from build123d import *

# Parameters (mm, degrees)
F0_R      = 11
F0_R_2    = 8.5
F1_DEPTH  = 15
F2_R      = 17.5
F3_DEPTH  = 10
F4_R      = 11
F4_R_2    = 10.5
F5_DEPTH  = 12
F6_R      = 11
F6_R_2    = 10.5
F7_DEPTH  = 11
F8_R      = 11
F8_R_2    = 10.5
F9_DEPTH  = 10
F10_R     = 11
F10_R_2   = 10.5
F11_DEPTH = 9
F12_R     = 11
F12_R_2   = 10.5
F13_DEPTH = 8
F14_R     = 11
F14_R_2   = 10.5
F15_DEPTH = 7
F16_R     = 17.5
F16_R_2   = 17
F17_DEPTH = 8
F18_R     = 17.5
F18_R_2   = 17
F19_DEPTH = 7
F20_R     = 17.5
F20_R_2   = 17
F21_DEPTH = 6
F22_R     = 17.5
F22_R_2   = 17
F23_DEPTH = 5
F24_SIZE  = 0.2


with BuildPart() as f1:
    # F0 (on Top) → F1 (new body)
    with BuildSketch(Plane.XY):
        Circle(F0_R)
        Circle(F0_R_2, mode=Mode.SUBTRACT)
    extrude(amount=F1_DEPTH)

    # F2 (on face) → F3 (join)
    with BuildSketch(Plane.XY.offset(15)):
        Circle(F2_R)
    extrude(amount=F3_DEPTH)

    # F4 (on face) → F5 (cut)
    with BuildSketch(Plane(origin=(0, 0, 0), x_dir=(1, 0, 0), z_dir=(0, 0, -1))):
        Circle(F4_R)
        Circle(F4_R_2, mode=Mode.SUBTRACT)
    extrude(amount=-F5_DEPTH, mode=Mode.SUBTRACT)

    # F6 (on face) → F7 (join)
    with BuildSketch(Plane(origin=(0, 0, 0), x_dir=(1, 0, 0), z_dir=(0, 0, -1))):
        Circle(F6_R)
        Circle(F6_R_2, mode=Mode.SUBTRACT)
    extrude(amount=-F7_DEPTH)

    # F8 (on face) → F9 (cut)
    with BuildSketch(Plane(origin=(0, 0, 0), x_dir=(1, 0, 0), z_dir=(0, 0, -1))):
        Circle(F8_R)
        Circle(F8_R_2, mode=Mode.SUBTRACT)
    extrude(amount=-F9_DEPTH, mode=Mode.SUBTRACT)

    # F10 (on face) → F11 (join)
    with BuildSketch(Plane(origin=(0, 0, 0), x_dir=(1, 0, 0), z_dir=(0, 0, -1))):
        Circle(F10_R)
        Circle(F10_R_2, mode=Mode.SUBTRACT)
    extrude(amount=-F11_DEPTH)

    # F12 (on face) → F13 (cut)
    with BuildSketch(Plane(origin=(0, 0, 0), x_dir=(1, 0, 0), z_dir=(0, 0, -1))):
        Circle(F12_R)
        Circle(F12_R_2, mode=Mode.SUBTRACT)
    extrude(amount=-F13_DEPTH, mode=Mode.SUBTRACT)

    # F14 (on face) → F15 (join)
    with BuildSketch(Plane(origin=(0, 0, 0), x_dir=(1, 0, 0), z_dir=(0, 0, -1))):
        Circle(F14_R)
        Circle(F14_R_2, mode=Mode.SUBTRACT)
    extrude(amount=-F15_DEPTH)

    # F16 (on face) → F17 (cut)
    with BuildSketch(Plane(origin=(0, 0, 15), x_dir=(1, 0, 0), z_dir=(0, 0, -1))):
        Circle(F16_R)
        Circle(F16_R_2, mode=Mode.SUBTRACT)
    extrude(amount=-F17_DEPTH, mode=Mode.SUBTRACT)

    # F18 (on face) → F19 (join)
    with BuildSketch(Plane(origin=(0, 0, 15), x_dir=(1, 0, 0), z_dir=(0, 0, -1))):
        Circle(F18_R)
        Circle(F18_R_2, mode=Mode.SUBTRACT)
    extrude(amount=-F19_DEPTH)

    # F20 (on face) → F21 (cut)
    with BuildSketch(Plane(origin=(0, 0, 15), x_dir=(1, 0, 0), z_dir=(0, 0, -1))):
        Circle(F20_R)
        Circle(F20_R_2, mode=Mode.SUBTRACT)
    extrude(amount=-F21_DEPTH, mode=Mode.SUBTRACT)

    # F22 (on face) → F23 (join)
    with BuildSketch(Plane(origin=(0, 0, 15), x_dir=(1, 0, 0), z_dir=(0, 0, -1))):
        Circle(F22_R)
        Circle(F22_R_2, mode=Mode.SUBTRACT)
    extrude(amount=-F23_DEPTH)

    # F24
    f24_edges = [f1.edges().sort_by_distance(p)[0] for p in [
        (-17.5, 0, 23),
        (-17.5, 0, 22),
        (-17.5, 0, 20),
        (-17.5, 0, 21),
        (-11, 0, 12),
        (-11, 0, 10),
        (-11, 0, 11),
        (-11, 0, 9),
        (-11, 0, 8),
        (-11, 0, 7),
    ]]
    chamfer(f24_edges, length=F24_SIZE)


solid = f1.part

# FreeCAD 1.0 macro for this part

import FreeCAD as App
import Part
import Sketcher
from FreeCAD import Vector
Q = App.Units.Quantity


def edges_at(feature, points):
    """Names of the edges that pass closest to the given points."""
    edges = feature.Shape.Edges
    near = lambda p: min(range(len(edges)), key=lambda i: edges[i].distToShape(Part.Vertex(*p))[0])
    return sorted({f"Edge{near(p) + 1}" for p in points})

doc = App.newDocument("Part")
body = doc.addObject("PartDesign::Body", "Body")

sketch1 = body.newObject("Sketcher::SketchObject", "Sketch")
sketch1.AttachmentSupport = (doc.getObject("XY_Plane"), [""])
sketch1.MapMode = "FlatFace"
sketch1.addGeometry([
    Part.Circle(Vector(0, 0, 0), Vector(0, 0, 1), 11),
    Part.Circle(Vector(0, 0, 0), Vector(0, 0, 1), 8),
], False)
sketch1.addConstraint([
    Sketcher.Constraint("Coincident", 0, 3, -1, 1),
    Sketcher.Constraint("Coincident", 1, 3, -1, 1),
    Sketcher.Constraint("Diameter", 0, Q("22 mm")),
    Sketcher.Constraint("Diameter", 1, Q("17 mm")),
])
pad1 = body.newObject("PartDesign::Pad", "Pad")
pad1.Profile = sketch1
pad1.Length = 15

sketch2 = body.newObject("Sketcher::SketchObject", "Sketch001")
sketch2.AttachmentSupport = (doc.getObject("XY_Plane"), [""])
sketch2.MapMode = "FlatFace"
sketch2.AttachmentOffset = App.Placement(Vector(0, 0, 15), App.Rotation())
sketch2.addGeometry(Part.Circle(Vector(0, 0, 0), Vector(0, 0, 1), 18), False)
sketch2.addConstraint([
    Sketcher.Constraint("Coincident", 0, 3, -1, 1),
    Sketcher.Constraint("Diameter", 0, Q("35 mm")),
])
pad2 = body.newObject("PartDesign::Pad", "Pad001")
pad2.Profile = sketch2
pad2.Length = 10

sketch3 = body.newObject("Sketcher::SketchObject", "Sketch002")
sketch3.AttachmentSupport = (doc.getObject("XY_Plane"), [""])
sketch3.MapMode = "FlatFace"
sketch3.addGeometry([
    Part.Circle(Vector(0, 0, 0), Vector(0, 0, 1), 11),
    Part.Circle(Vector(0, 0, 0), Vector(0, 0, 1), 10),
], False)
sketch3.addConstraint([
    Sketcher.Constraint("Coincident", 0, 3, -1, 1),
    Sketcher.Constraint("Coincident", 1, 3, -1, 1),
    Sketcher.Constraint("Diameter", 0, Q("22 mm")),
    Sketcher.Constraint("Diameter", 1, Q("21 mm")),
])
pocket1 = body.newObject("PartDesign::Pocket", "Pocket")
pocket1.Profile = sketch3
pocket1.Length = 12
pocket1.Reversed = True

sketch4 = body.newObject("Sketcher::SketchObject", "Sketch003")
sketch4.AttachmentSupport = (doc.getObject("XY_Plane"), [""])
sketch4.MapMode = "FlatFace"
sketch4.addGeometry([
    Part.Circle(Vector(0, 0, 0), Vector(0, 0, 1), 11),
    Part.Circle(Vector(0, 0, 0), Vector(0, 0, 1), 10),
], False)
sketch4.addConstraint([
    Sketcher.Constraint("Coincident", 0, 3, -1, 1),
    Sketcher.Constraint("Coincident", 1, 3, -1, 1),
    Sketcher.Constraint("Diameter", 0, Q("22 mm")),
    Sketcher.Constraint("Diameter", 1, Q("21 mm")),
])
pad3 = body.newObject("PartDesign::Pad", "Pad002")
pad3.Profile = sketch4
pad3.Length = 11

sketch5 = body.newObject("Sketcher::SketchObject", "Sketch004")
sketch5.AttachmentSupport = (doc.getObject("XY_Plane"), [""])
sketch5.MapMode = "FlatFace"
sketch5.addGeometry([
    Part.Circle(Vector(0, 0, 0), Vector(0, 0, 1), 11),
    Part.Circle(Vector(0, 0, 0), Vector(0, 0, 1), 10),
], False)
sketch5.addConstraint([
    Sketcher.Constraint("Coincident", 0, 3, -1, 1),
    Sketcher.Constraint("Coincident", 1, 3, -1, 1),
    Sketcher.Constraint("Diameter", 0, Q("22 mm")),
    Sketcher.Constraint("Diameter", 1, Q("21 mm")),
])
pocket2 = body.newObject("PartDesign::Pocket", "Pocket001")
pocket2.Profile = sketch5
pocket2.Length = 10
pocket2.Reversed = True

sketch6 = body.newObject("Sketcher::SketchObject", "Sketch005")
sketch6.AttachmentSupport = (doc.getObject("XY_Plane"), [""])
sketch6.MapMode = "FlatFace"
sketch6.addGeometry([
    Part.Circle(Vector(0, 0, 0), Vector(0, 0, 1), 11),
    Part.Circle(Vector(0, 0, 0), Vector(0, 0, 1), 10),
], False)
sketch6.addConstraint([
    Sketcher.Constraint("Coincident", 0, 3, -1, 1),
    Sketcher.Constraint("Coincident", 1, 3, -1, 1),
    Sketcher.Constraint("Diameter", 0, Q("22 mm")),
    Sketcher.Constraint("Diameter", 1, Q("21 mm")),
])
pad4 = body.newObject("PartDesign::Pad", "Pad003")
pad4.Profile = sketch6
pad4.Length = 9

sketch7 = body.newObject("Sketcher::SketchObject", "Sketch006")
sketch7.AttachmentSupport = (doc.getObject("XY_Plane"), [""])
sketch7.MapMode = "FlatFace"
sketch7.addGeometry([
    Part.Circle(Vector(0, 0, 0), Vector(0, 0, 1), 11),
    Part.Circle(Vector(0, 0, 0), Vector(0, 0, 1), 10),
], False)
sketch7.addConstraint([
    Sketcher.Constraint("Coincident", 0, 3, -1, 1),
    Sketcher.Constraint("Coincident", 1, 3, -1, 1),
    Sketcher.Constraint("Diameter", 0, Q("22 mm")),
    Sketcher.Constraint("Diameter", 1, Q("21 mm")),
])
pocket3 = body.newObject("PartDesign::Pocket", "Pocket002")
pocket3.Profile = sketch7
pocket3.Length = 8
pocket3.Reversed = True

sketch8 = body.newObject("Sketcher::SketchObject", "Sketch007")
sketch8.AttachmentSupport = (doc.getObject("XY_Plane"), [""])
sketch8.MapMode = "FlatFace"
sketch8.addGeometry([
    Part.Circle(Vector(0, 0, 0), Vector(0, 0, 1), 11),
    Part.Circle(Vector(0, 0, 0), Vector(0, 0, 1), 10),
], False)
sketch8.addConstraint([
    Sketcher.Constraint("Coincident", 0, 3, -1, 1),
    Sketcher.Constraint("Coincident", 1, 3, -1, 1),
    Sketcher.Constraint("Diameter", 0, Q("22 mm")),
    Sketcher.Constraint("Diameter", 1, Q("21 mm")),
])
pad5 = body.newObject("PartDesign::Pad", "Pad004")
pad5.Profile = sketch8
pad5.Length = 7

sketch9 = body.newObject("Sketcher::SketchObject", "Sketch008")
sketch9.AttachmentSupport = (doc.getObject("XY_Plane"), [""])
sketch9.MapMode = "FlatFace"
sketch9.AttachmentOffset = App.Placement(Vector(0, 0, 15), App.Rotation())
sketch9.addGeometry([
    Part.Circle(Vector(0, 0, 0), Vector(0, 0, 1), 18),
    Part.Circle(Vector(0, 0, 0), Vector(0, 0, 1), 17),
], False)
sketch9.addConstraint([
    Sketcher.Constraint("Coincident", 0, 3, -1, 1),
    Sketcher.Constraint("Coincident", 1, 3, -1, 1),
    Sketcher.Constraint("Diameter", 0, Q("35 mm")),
    Sketcher.Constraint("Diameter", 1, Q("34 mm")),
])
pocket4 = body.newObject("PartDesign::Pocket", "Pocket003")
pocket4.Profile = sketch9
pocket4.Length = 8
pocket4.Reversed = True

sketch10 = body.newObject("Sketcher::SketchObject", "Sketch009")
sketch10.AttachmentSupport = (doc.getObject("XY_Plane"), [""])
sketch10.MapMode = "FlatFace"
sketch10.AttachmentOffset = App.Placement(Vector(0, 0, 15), App.Rotation())
sketch10.addGeometry([
    Part.Circle(Vector(0, 0, 0), Vector(0, 0, 1), 18),
    Part.Circle(Vector(0, 0, 0), Vector(0, 0, 1), 17),
], False)
sketch10.addConstraint([
    Sketcher.Constraint("Coincident", 0, 3, -1, 1),
    Sketcher.Constraint("Coincident", 1, 3, -1, 1),
    Sketcher.Constraint("Diameter", 0, Q("35 mm")),
    Sketcher.Constraint("Diameter", 1, Q("34 mm")),
])
pad6 = body.newObject("PartDesign::Pad", "Pad005")
pad6.Profile = sketch10
pad6.Length = 7

sketch11 = body.newObject("Sketcher::SketchObject", "Sketch010")
sketch11.AttachmentSupport = (doc.getObject("XY_Plane"), [""])
sketch11.MapMode = "FlatFace"
sketch11.AttachmentOffset = App.Placement(Vector(0, 0, 15), App.Rotation())
sketch11.addGeometry([
    Part.Circle(Vector(0, 0, 0), Vector(0, 0, 1), 18),
    Part.Circle(Vector(0, 0, 0), Vector(0, 0, 1), 17),
], False)
sketch11.addConstraint([
    Sketcher.Constraint("Coincident", 0, 3, -1, 1),
    Sketcher.Constraint("Coincident", 1, 3, -1, 1),
    Sketcher.Constraint("Diameter", 0, Q("35 mm")),
    Sketcher.Constraint("Diameter", 1, Q("34 mm")),
])
pocket5 = body.newObject("PartDesign::Pocket", "Pocket004")
pocket5.Profile = sketch11
pocket5.Length = 6
pocket5.Reversed = True

sketch12 = body.newObject("Sketcher::SketchObject", "Sketch011")
sketch12.AttachmentSupport = (doc.getObject("XY_Plane"), [""])
sketch12.MapMode = "FlatFace"
sketch12.AttachmentOffset = App.Placement(Vector(0, 0, 15), App.Rotation())
sketch12.addGeometry([
    Part.Circle(Vector(0, 0, 0), Vector(0, 0, 1), 18),
    Part.Circle(Vector(0, 0, 0), Vector(0, 0, 1), 17),
], False)
sketch12.addConstraint([
    Sketcher.Constraint("Coincident", 0, 3, -1, 1),
    Sketcher.Constraint("Coincident", 1, 3, -1, 1),
    Sketcher.Constraint("Diameter", 0, Q("35 mm")),
    Sketcher.Constraint("Diameter", 1, Q("34 mm")),
])
pad7 = body.newObject("PartDesign::Pad", "Pad006")
pad7.Profile = sketch12
pad7.Length = 5
doc.recompute()

chamfer = body.newObject("PartDesign::Chamfer", "Chamfer")
chamfer.Base = (pad7, edges_at(pad7, [
    (-17.5, 0, 23),
    (-17.5, 0, 22),
    (-17.5, 0, 20),
    (-17.5, 0, 21),
    (-11, 0, 12),
    (-11, 0, 10),
    (-11, 0, 11),
    (-11, 0, 9),
    (-11, 0, 8),
    (-11, 0, 7),
]))
chamfer.Size = 0.2

doc.recompute()
